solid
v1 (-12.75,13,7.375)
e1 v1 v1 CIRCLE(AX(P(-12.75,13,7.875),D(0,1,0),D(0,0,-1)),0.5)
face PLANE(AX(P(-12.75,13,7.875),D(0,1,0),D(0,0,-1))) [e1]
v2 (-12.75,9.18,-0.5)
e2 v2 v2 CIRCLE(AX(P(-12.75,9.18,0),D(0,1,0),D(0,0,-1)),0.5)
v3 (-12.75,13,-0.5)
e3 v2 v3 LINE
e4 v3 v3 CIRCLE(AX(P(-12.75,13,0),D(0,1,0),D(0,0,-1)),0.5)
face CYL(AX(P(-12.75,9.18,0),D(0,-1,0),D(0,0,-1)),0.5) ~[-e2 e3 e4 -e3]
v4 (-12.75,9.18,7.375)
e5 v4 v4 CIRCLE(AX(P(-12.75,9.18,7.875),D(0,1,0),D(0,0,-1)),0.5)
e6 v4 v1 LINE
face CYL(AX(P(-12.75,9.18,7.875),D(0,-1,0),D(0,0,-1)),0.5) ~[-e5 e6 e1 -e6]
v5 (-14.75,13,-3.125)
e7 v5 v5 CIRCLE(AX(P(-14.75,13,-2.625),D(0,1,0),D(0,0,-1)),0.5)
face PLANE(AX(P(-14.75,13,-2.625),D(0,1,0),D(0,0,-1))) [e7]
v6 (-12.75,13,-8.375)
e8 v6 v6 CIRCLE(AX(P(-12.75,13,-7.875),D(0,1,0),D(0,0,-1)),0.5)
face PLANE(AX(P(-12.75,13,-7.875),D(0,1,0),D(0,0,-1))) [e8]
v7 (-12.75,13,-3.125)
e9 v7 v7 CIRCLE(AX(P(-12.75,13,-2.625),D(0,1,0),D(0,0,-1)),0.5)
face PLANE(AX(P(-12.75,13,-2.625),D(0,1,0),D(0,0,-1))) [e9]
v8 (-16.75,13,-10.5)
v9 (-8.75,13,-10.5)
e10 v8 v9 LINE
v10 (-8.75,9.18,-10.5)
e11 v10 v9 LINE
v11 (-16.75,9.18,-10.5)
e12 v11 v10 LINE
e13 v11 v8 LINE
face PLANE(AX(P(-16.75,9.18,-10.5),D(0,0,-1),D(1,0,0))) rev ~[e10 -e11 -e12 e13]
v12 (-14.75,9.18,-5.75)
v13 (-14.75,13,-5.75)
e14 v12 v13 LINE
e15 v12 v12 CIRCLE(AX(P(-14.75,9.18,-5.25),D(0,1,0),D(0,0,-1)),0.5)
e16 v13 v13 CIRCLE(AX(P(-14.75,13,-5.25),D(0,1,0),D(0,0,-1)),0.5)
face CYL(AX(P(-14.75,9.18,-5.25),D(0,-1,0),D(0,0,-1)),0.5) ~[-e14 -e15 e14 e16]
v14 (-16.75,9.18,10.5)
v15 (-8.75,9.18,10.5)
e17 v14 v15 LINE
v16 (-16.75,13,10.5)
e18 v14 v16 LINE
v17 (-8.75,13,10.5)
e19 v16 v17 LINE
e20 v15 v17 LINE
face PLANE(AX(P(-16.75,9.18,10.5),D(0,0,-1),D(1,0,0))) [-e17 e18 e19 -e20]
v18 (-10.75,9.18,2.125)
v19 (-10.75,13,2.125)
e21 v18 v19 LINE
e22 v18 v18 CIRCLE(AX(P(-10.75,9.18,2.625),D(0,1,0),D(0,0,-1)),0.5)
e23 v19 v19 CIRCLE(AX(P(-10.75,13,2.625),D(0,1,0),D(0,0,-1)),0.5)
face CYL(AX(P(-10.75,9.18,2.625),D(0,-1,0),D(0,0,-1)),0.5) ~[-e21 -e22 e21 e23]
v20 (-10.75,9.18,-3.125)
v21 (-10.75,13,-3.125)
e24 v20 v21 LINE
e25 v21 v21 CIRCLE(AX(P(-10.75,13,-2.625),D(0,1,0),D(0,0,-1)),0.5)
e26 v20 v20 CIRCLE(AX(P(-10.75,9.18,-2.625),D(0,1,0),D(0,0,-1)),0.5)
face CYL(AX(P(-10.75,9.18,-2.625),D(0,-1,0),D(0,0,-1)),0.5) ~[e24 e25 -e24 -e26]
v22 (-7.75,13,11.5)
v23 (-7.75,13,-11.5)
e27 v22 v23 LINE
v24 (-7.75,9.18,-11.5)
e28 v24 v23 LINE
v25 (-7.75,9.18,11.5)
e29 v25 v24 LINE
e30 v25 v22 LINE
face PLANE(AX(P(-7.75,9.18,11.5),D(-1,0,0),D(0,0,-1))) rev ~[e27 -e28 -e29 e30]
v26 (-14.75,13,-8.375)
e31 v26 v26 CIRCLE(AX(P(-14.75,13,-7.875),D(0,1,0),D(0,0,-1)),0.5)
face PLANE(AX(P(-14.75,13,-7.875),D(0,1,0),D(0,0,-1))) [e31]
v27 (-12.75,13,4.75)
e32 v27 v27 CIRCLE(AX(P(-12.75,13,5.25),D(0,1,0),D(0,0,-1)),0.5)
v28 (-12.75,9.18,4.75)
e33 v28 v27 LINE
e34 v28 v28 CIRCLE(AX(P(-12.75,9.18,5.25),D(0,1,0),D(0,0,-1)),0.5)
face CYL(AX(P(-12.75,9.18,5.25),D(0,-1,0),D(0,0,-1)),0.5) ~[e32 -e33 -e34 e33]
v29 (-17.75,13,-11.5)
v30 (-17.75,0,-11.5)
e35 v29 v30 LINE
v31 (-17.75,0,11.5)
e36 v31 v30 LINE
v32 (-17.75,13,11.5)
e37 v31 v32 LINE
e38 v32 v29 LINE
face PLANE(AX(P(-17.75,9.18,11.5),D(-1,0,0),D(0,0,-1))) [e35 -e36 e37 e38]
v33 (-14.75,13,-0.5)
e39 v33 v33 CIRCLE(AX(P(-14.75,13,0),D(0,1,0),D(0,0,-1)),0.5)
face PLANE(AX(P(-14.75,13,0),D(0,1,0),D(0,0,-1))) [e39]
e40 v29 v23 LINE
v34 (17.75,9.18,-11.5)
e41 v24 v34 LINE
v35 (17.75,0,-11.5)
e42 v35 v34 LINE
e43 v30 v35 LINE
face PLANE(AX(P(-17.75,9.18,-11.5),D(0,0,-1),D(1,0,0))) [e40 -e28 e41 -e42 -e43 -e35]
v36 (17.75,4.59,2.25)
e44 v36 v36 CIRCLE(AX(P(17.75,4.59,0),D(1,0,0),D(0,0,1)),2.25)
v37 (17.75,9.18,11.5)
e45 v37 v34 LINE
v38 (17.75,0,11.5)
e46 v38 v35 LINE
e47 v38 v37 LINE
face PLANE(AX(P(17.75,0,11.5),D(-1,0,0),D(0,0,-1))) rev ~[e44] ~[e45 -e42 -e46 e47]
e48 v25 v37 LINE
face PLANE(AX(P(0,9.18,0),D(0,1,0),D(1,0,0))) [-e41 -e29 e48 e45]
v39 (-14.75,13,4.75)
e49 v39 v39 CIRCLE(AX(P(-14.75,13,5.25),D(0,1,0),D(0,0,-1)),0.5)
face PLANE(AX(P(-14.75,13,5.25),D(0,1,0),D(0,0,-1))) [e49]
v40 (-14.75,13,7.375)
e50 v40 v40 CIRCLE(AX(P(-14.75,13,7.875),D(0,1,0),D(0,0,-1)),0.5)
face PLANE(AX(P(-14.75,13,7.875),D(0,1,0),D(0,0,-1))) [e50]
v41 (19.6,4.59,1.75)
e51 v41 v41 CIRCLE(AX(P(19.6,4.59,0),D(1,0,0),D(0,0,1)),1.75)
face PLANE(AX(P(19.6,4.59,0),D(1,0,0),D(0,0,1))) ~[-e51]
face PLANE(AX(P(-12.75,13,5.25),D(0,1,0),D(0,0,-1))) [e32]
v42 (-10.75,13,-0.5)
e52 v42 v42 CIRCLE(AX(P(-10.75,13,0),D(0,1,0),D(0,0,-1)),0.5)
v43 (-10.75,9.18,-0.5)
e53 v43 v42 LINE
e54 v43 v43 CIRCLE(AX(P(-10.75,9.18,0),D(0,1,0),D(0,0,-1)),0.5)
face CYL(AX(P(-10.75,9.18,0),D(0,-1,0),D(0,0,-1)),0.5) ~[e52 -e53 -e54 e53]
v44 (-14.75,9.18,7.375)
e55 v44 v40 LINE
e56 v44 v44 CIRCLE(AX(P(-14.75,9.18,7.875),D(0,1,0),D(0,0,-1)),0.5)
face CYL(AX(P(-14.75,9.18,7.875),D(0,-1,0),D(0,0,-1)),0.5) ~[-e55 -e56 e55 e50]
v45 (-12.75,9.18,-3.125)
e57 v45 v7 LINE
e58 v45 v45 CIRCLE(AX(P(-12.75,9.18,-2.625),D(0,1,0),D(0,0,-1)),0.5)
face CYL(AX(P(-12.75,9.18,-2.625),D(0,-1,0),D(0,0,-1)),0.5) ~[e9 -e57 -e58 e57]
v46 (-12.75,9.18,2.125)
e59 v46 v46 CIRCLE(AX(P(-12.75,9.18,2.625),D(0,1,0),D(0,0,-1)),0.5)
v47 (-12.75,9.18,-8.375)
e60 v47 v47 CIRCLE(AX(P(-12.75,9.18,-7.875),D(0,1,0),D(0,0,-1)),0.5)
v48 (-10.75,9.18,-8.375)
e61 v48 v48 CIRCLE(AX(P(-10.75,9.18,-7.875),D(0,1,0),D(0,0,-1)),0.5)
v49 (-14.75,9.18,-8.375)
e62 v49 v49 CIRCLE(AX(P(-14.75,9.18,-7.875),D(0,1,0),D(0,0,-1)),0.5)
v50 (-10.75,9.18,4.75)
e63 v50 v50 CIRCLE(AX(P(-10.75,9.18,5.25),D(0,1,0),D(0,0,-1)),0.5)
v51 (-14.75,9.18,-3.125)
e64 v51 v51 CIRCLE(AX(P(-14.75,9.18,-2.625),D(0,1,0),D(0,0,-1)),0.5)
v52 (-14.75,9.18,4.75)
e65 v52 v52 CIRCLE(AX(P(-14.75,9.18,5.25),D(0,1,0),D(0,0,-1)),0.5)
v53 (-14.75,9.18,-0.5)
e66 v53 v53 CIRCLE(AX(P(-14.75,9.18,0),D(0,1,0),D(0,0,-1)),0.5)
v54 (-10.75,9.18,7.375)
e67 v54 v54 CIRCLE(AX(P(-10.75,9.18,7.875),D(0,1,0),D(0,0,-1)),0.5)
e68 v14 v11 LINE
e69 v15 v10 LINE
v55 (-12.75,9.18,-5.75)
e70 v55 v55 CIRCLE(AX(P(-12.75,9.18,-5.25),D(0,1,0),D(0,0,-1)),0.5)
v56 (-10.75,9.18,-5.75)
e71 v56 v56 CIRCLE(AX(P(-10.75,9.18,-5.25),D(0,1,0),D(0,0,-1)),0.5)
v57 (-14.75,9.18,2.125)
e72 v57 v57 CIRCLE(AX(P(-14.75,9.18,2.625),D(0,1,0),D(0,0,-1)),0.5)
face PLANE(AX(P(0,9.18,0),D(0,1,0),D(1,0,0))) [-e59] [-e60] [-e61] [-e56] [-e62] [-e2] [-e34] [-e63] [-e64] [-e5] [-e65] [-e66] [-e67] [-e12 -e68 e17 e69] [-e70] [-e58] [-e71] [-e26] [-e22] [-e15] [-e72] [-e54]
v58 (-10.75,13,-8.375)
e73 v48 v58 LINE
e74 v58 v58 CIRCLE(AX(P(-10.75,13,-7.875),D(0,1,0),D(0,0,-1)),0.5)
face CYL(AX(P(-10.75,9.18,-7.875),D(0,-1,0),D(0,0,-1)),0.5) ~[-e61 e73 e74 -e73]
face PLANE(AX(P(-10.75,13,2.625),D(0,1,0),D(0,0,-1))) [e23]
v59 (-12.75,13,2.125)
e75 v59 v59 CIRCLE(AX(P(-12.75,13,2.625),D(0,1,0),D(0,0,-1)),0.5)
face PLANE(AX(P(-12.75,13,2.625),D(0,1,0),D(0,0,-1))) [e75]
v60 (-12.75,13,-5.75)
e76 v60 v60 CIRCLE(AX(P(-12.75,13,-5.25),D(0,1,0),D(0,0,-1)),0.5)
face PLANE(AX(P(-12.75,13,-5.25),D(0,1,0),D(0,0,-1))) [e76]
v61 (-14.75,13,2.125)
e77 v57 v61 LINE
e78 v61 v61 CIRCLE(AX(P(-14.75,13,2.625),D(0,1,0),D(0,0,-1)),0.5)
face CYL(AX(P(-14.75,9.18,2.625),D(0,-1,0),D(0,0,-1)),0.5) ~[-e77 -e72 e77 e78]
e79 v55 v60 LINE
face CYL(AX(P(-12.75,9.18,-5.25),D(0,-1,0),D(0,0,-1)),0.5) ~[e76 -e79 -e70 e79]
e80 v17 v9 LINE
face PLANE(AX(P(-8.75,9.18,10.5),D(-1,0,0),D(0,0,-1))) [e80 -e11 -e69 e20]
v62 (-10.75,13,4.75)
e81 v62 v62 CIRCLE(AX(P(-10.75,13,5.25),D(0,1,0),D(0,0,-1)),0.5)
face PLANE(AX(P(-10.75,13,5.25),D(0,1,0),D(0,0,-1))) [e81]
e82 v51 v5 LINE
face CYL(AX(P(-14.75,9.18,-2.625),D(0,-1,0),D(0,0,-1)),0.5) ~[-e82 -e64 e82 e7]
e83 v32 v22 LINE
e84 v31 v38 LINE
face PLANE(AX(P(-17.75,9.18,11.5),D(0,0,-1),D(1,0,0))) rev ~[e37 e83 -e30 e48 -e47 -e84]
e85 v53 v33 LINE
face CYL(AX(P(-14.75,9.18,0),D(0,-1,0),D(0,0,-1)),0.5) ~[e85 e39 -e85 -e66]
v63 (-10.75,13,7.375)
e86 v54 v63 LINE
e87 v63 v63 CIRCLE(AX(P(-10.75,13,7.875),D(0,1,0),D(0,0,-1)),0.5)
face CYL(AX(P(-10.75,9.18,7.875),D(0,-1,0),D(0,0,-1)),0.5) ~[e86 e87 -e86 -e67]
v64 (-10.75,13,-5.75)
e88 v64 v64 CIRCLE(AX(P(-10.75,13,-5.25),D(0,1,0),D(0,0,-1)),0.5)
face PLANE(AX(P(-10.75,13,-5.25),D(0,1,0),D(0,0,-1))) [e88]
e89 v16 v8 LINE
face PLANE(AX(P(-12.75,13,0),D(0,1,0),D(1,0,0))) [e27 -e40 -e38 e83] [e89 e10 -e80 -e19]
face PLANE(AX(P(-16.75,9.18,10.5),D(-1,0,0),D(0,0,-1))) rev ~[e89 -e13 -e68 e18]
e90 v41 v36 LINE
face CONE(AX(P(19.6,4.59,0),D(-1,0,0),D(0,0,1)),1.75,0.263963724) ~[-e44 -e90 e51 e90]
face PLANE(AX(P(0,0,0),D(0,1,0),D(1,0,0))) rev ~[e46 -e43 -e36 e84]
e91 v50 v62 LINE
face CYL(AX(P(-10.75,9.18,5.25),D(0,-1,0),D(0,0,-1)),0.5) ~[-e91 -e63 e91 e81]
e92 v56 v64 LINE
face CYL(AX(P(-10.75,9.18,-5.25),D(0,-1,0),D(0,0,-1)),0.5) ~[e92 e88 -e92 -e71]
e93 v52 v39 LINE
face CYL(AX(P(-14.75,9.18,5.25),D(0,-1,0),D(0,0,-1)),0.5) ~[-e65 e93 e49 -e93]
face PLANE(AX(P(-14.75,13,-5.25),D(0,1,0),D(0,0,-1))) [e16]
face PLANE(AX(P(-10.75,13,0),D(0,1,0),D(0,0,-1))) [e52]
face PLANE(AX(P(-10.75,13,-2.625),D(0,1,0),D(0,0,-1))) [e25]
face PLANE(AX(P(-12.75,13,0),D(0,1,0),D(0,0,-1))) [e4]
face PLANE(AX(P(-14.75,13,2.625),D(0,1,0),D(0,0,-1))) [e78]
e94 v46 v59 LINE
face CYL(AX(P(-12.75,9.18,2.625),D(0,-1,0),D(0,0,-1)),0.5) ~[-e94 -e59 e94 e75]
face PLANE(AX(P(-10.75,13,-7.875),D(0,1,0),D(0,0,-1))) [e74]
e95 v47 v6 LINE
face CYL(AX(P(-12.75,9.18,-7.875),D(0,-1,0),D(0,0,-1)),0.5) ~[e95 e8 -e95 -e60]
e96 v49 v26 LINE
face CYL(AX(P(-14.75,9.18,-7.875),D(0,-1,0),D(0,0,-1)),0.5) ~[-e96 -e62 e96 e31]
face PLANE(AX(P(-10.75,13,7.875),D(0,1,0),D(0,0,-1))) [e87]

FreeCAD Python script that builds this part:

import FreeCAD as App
import Part
import Sketcher


def add_polygon(sketch, points):
    """Adds a closed chain of lines whose ends are joined by coincident constraints."""
    first, n = sketch.GeometryCount, len(points)
    for a, b in zip(points, points[1:] + points[:1]):
        sketch.addGeometry(Part.LineSegment(App.Vector(*a, 0), App.Vector(*b, 0)), False)
    for i in range(n):
        sketch.addConstraint(Sketcher.Constraint("Coincident", first + i, 2, first + (i + 1) % n, 1))

doc = App.newDocument("Part")
body = doc.addObject("PartDesign::Body", "Body")

# Sketch on XZ plane
sketch1 = body.newObject("Sketcher::SketchObject", "Sketch")
sketch1.AttachmentSupport = (doc.getObject("XZ_Plane"), [""])
sketch1.MapMode = "FlatFace"
add_polygon(sketch1, [(-18, -12), (-18, 12), (18, 12), (18, -12)])  # lines 0-3
sketch1.addConstraint([
    Sketcher.Constraint("Vertical", 0),
    Sketcher.Constraint("Horizontal", 1),
    Sketcher.Constraint("Vertical", 2),
    Sketcher.Constraint("Horizontal", 3),
    Sketcher.Constraint("Symmetric", 0, 2, 2, 2, -1, 1),
    Sketcher.Constraint("DistanceY", 0, 1, 0, 2, 23.0),
    Sketcher.Constraint("DistanceX", 1, 1, 1, 2, 35.5),
])
pad1 = body.newObject("PartDesign::Pad", "Pad")
pad1.Profile = sketch1
pad1.Length = 9.18
pad1.Reversed = True

# Sketch on XZ plane
sketch2 = body.newObject("Sketcher::SketchObject", "Sketch001")
sketch2.AttachmentSupport = (doc.getObject("XZ_Plane"), [""])
sketch2.MapMode = "FlatFace"
sketch2.AttachmentOffset = App.Placement(App.Vector(0, 0, -9.18), App.Rotation())
add_polygon(sketch2, [(-18, -12), (-18, 12), (-8, 12), (-8, -12)])  # lines 0-3
add_polygon(sketch2, [(-9, 10), (-17, 10), (-17, -10), (-9, -10)])  # lines 4-7
sketch2.addConstraint([
    Sketcher.Constraint("Vertical", 0),
    Sketcher.Constraint("Horizontal", 1),
    Sketcher.Constraint("Vertical", 2),
    Sketcher.Constraint("Horizontal", 3),
    Sketcher.Constraint("Horizontal", 4),
    Sketcher.Constraint("Vertical", 5),
    Sketcher.Constraint("Horizontal", 6),
    Sketcher.Constraint("Vertical", 7),
    Sketcher.Constraint("DistanceX", 1, 1, 1, 2, 10.0),
    Sketcher.Constraint("DistanceX", 4, 2, 4, 1, 8.0),
    Sketcher.Constraint("DistanceY", 0, 1, 0, 2, 23.0),
    Sketcher.Constraint("DistanceY", 5, 2, 5, 1, 21.0),
    Sketcher.Constraint("DistanceX", 0, 2, 4, 2, 1.0),
    Sketcher.Constraint("DistanceY", 4, 2, 0, 2, 1.0),
    Sketcher.Constraint("DistanceY", -1, 1, 0, 2, 11.5),
    Sketcher.Constraint("DistanceX", 0, 2, -1, 1, 17.75),
])
pad2 = body.newObject("PartDesign::Pad", "Pad001")
pad2.Profile = sketch2
pad2.Length = 3.82
pad2.Reversed = True

# Sketch on XZ plane
sketch3 = body.newObject("Sketcher::SketchObject", "Sketch002")
sketch3.AttachmentSupport = (doc.getObject("XZ_Plane"), [""])
sketch3.MapMode = "FlatFace"
sketch3.AttachmentOffset = App.Placement(App.Vector(0, 0, -9.18), App.Rotation())
sketch3.addGeometry([
    Part.Circle(App.Vector(-14.8, -7.9, 0), App.Vector(0, 0, 1), 0.5),  # 0
    Part.Circle(App.Vector(-12.8, -7.9, 0), App.Vector(0, 0, 1), 0.5),  # 1
    Part.Circle(App.Vector(-10.8, -7.9, 0), App.Vector(0, 0, 1), 0.5),  # 2
    Part.Circle(App.Vector(-12.8, -5.2, 0), App.Vector(0, 0, 1), 0.5),  # 3
    Part.Circle(App.Vector(-10.8, -5.2, 0), App.Vector(0, 0, 1), 0.5),  # 4
    Part.Circle(App.Vector(-12.8, -2.6, 0), App.Vector(0, 0, 1), 0.5),  # 5
    Part.Circle(App.Vector(-10.8, -2.6, 0), App.Vector(0, 0, 1), 0.5),  # 6
    Part.Circle(App.Vector(-12.8, 0, 0), App.Vector(0, 0, 1), 0.5),  # 7
    Part.Circle(App.Vector(-10.8, 0, 0), App.Vector(0, 0, 1), 0.5),  # 8
    Part.Circle(App.Vector(-12.8, 2.6, 0), App.Vector(0, 0, 1), 0.5),  # 9
    Part.Circle(App.Vector(-10.8, 2.6, 0), App.Vector(0, 0, 1), 0.5),  # 10
    Part.Circle(App.Vector(-12.8, 5.2, 0), App.Vector(0, 0, 1), 0.5),  # 11
    Part.Circle(App.Vector(-10.8, 5.2, 0), App.Vector(0, 0, 1), 0.5),  # 12
    Part.Circle(App.Vector(-12.8, 7.9, 0), App.Vector(0, 0, 1), 0.5),  # 13
    Part.Circle(App.Vector(-10.8, 7.9, 0), App.Vector(0, 0, 1), 0.5),  # 14
    Part.Circle(App.Vector(-14.8, -5.2, 0), App.Vector(0, 0, 1), 0.5),  # 15
    Part.Circle(App.Vector(-14.8, -2.6, 0), App.Vector(0, 0, 1), 0.5),  # 16
    Part.Circle(App.Vector(-14.8, 0, 0), App.Vector(0, 0, 1), 0.5),  # 17
    Part.Circle(App.Vector(-14.8, 2.6, 0), App.Vector(0, 0, 1), 0.5),  # 18
    Part.Circle(App.Vector(-14.8, 5.2, 0), App.Vector(0, 0, 1), 0.5),  # 19
    Part.Circle(App.Vector(-14.8, 7.9, 0), App.Vector(0, 0, 1), 0.5),  # 20
], False)
sketch3.addConstraint([
    Sketcher.Constraint("Equal", 0, 1),
    Sketcher.Constraint("Equal", 1, 2),
    Sketcher.Constraint("Equal", 2, 3),
    Sketcher.Constraint("Equal", 3, 4),
    Sketcher.Constraint("Equal", 4, 5),
    Sketcher.Constraint("Equal", 5, 6),
    Sketcher.Constraint("Equal", 6, 7),
    Sketcher.Constraint("Equal", 7, 8),
    Sketcher.Constraint("Equal", 8, 9),
    Sketcher.Constraint("Equal", 9, 10),
    Sketcher.Constraint("Equal", 10, 11),
    Sketcher.Constraint("Equal", 11, 12),
    Sketcher.Constraint("Equal", 12, 13),
    Sketcher.Constraint("Equal", 13, 14),
    Sketcher.Constraint("Equal", 14, 15),
    Sketcher.Constraint("Equal", 15, 16),
    Sketcher.Constraint("Equal", 16, 17),
    Sketcher.Constraint("Equal", 17, 18),
    Sketcher.Constraint("Equal", 18, 19),
    Sketcher.Constraint("Equal", 19, 20),
    Sketcher.Constraint("Symmetric", 5, 3, 9, 3, -1),
    Sketcher.Constraint("Symmetric", 6, 3, 10, 3, -1),
    Sketcher.Constraint("Symmetric", 3, 3, 11, 3, -1),
    Sketcher.Constraint("Symmetric", 4, 3, 12, 3, -1),
    Sketcher.Constraint("Symmetric", 1, 3, 13, 3, -1),
    Sketcher.Constraint("Symmetric", 2, 3, 14, 3, -1),
    Sketcher.Constraint("Symmetric", 16, 3, 18, 3, -1),
    Sketcher.Constraint("Symmetric", 15, 3, 19, 3, -1),
    Sketcher.Constraint("Symmetric", 0, 3, 20, 3, -1),
    Sketcher.Constraint("PointOnObject", 7, 3, -1),
    Sketcher.Constraint("PointOnObject", 8, 3, -1),
    Sketcher.Constraint("PointOnObject", 17, 3, -1),
    Sketcher.Constraint("Horizontal", 0, 3, 1, 3),
    Sketcher.Constraint("Horizontal", 1, 3, 2, 3),
    Sketcher.Constraint("Horizontal", 3, 3, 4, 3),
    Sketcher.Constraint("Horizontal", 5, 3, 6, 3),
    Sketcher.Constraint("Horizontal", 4, 3, 15, 3),
    Sketcher.Constraint("Horizontal", 6, 3, 16, 3),
    Sketcher.Constraint("Vertical", 1, 3, 3, 3),
    Sketcher.Constraint("Vertical", 2, 3, 4, 3),
    Sketcher.Constraint("Vertical", 3, 3, 5, 3),
    Sketcher.Constraint("Vertical", 4, 3, 6, 3),
    Sketcher.Constraint("Vertical", 5, 3, 7, 3),
    Sketcher.Constraint("Vertical", 6, 3, 8, 3),
    Sketcher.Constraint("Vertical", 0, 3, 15, 3),
    Sketcher.Constraint("Vertical", 15, 3, 16, 3),
    Sketcher.Constraint("Vertical", 16, 3, 17, 3),
    Sketcher.Constraint("Diameter", 0, 1.0),
    Sketcher.Constraint("DistanceX", 0, 3, 1, 3, 2.0),
    Sketcher.Constraint("DistanceX", 1, 3, 2, 3, 2.0),
    Sketcher.Constraint("DistanceX", 0, 3, -1, 1, 14.75),
    Sketcher.Constraint("DistanceY", 3, 3, -1, 1, 5.25),
    Sketcher.Constraint("DistanceY", 1, 3, 5, 3, 5.25),
    Sketcher.Constraint("DistanceY", 5, 3, 9, 3, 5.25),
])
pad3 = body.newObject("PartDesign::Pad", "Pad002")
pad3.Profile = sketch3
pad3.Length = 3.82
pad3.Reversed = True

# Sketch on XY plane
sketch4 = body.newObject("Sketcher::SketchObject", "Sketch003")
sketch4.AttachmentSupport = (doc.getObject("XY_Plane"), [""])
sketch4.MapMode = "FlatFace"
add_polygon(sketch4, [(17.8, 4.6), (19.6, 4.6), (19.6, 6.3), (17.8, 6.8)])  # lines 0-3
sketch4.addGeometry(Part.LineSegment(App.Vector(17.8, 4.6, 0), App.Vector(19.6, 4.6, 0)), True)  # axis
sketch4.addConstraint([
    Sketcher.Constraint("Horizontal", 0),
    Sketcher.Constraint("Vertical", 1),
    Sketcher.Constraint("Vertical", 3),
    Sketcher.Constraint("Horizontal", 4),
    Sketcher.Constraint("Coincident", 4, 1, 3, 2),
    Sketcher.Constraint("Vertical", 1, 2, 4, 2),
    Sketcher.Constraint("DistanceX", 0, 1, 0, 2, 1.85),
    Sketcher.Constraint("DistanceY", 1, 1, 1, 2, 1.75),
    Sketcher.Constraint("DistanceY", 3, 2, 3, 1, 2.25),
    Sketcher.Constraint("DistanceX", -1, 1, 0, 2, 19.6),
    Sketcher.Constraint("DistanceY", -1, 1, 0, 2, 4.59),
])
revolution = body.newObject("PartDesign::Revolution", "Revolution")
revolution.Profile = sketch4
revolution.ReferenceAxis = (sketch4, ["Axis0"])
revolution.Angle = 360

doc.recompute()
